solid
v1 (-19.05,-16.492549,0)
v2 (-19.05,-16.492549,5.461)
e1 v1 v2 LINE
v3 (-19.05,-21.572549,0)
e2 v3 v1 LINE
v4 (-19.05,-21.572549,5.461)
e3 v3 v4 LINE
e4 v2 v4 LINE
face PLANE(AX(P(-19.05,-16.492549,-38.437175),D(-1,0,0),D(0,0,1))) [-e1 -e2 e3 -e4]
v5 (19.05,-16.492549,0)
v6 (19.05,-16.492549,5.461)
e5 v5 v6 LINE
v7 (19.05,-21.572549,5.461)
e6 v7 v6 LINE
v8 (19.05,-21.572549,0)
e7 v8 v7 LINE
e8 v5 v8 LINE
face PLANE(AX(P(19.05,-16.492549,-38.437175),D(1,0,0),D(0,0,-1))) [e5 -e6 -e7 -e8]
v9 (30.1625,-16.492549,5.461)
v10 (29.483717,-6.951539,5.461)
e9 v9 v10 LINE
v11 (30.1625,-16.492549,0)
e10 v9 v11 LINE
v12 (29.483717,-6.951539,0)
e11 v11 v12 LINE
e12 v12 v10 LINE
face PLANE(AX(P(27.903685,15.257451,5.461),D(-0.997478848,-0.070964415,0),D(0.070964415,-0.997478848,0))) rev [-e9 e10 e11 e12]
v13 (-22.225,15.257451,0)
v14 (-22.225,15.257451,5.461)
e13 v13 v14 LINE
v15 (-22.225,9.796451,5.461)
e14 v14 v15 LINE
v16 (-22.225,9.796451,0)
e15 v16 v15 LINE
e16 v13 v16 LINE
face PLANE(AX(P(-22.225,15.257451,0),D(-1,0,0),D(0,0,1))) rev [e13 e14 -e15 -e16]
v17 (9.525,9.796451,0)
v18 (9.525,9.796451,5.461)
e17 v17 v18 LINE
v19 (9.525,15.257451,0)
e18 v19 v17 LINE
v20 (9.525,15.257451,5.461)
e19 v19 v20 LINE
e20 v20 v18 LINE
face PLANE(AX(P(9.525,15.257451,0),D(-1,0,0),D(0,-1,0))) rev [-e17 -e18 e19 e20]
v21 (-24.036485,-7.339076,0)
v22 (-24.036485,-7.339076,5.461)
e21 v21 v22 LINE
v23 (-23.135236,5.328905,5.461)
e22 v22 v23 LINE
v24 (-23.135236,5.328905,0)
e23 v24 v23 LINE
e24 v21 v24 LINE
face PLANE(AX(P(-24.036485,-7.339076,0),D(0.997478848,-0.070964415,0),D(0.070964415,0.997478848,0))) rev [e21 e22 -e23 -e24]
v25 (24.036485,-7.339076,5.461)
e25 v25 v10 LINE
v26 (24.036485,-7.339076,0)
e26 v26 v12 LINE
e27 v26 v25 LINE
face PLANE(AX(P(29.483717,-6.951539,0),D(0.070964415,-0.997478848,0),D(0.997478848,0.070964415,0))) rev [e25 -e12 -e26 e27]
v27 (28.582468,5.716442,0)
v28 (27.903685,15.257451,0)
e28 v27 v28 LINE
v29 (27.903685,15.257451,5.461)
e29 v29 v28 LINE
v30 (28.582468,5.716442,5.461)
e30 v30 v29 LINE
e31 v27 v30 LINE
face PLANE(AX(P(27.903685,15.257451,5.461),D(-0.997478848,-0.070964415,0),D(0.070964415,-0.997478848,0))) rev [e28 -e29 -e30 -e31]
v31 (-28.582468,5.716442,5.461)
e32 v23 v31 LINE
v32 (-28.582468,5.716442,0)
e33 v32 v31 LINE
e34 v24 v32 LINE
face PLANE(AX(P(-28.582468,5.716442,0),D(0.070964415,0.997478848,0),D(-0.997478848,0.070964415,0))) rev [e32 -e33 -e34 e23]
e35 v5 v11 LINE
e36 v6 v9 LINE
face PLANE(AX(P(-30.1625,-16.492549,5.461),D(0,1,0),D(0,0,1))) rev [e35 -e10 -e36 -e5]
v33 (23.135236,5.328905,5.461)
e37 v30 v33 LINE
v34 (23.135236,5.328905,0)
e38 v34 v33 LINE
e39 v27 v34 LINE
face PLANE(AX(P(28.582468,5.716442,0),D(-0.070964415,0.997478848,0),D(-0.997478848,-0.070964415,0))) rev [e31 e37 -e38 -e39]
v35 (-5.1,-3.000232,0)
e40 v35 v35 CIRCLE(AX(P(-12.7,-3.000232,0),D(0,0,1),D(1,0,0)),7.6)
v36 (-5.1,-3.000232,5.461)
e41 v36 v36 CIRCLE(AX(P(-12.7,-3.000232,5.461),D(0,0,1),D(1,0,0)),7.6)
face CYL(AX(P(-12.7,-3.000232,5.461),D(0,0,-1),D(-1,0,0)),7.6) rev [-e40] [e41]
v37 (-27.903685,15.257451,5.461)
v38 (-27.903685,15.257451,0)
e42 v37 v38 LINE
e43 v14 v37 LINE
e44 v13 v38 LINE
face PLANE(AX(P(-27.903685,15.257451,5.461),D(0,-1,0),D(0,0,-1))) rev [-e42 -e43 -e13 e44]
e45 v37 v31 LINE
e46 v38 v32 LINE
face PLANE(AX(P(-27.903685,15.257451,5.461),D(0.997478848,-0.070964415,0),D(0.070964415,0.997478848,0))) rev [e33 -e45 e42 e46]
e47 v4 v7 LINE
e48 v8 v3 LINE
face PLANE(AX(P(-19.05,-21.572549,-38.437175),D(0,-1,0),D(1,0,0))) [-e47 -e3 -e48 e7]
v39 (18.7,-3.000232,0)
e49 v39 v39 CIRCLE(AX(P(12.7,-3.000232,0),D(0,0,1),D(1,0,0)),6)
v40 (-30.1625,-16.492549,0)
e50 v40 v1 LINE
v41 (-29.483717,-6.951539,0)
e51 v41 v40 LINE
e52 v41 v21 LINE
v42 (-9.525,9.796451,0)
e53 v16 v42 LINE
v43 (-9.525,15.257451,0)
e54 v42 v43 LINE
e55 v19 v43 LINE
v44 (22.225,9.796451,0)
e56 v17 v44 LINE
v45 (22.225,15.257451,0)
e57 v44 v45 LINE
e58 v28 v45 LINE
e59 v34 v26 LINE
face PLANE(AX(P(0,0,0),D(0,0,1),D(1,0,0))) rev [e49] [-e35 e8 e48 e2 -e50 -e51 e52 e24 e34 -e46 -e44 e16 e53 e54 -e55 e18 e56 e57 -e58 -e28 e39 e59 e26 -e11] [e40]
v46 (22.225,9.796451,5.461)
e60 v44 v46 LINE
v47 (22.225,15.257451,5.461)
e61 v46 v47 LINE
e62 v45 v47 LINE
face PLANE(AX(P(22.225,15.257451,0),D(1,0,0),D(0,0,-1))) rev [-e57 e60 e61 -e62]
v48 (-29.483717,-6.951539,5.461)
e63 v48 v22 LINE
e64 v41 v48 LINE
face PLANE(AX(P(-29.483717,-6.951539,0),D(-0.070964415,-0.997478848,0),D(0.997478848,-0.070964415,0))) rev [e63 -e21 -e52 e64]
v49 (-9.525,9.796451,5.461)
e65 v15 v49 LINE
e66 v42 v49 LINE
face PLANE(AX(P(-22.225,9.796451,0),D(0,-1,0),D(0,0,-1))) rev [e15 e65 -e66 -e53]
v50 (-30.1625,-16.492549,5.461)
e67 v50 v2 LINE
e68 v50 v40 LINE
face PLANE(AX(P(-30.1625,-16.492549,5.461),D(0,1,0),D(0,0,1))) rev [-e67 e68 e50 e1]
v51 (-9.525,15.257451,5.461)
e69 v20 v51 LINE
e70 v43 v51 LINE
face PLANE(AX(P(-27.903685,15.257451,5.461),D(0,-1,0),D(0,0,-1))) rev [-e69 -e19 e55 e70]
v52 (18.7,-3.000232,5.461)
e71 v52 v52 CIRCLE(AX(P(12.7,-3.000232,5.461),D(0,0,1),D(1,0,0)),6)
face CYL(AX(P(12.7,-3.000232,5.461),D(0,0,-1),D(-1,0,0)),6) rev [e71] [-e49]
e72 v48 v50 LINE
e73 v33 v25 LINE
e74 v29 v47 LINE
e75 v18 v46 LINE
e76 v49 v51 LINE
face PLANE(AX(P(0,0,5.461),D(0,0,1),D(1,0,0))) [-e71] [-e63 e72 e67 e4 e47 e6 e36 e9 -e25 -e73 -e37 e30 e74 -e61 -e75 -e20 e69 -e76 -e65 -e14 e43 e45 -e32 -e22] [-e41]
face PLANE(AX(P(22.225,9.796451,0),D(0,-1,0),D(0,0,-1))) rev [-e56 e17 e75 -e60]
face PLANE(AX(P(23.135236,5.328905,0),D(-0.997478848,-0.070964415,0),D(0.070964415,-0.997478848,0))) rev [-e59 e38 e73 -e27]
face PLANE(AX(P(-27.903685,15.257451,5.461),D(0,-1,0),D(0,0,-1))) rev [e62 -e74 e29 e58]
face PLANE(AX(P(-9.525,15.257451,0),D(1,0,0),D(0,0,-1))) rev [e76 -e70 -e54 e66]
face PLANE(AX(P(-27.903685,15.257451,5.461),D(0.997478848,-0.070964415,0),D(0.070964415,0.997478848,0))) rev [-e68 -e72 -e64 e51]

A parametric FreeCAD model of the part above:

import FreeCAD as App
import Part
import Sketcher

V = App.Vector
Q = App.Units.Quantity


def add_polygon(sketch, points):
    """Adds a closed chain of lines whose ends are joined by coincident constraints."""
    first, n = sketch.GeometryCount, len(points)
    for a, b in zip(points, points[1:] + points[:1]):
        sketch.addGeometry(Part.LineSegment(App.Vector(*a, 0), App.Vector(*b, 0)), False)
    for i in range(n):
        sketch.addConstraint(Sketcher.Constraint("Coincident", first + i, 2, first + (i + 1) % n, 1))

doc = App.newDocument("Part")
body = doc.addObject("PartDesign::Body", "Body")

# Sketch on XY plane
sketch1 = body.newObject("Sketcher::SketchObject", "Sketch")
sketch1.AttachmentSupport = (doc.getObject("XY_Plane"), [""])
sketch1.MapMode = "FlatFace"
add_polygon(sketch1, [(28, 15), (-28, 15), (-30, -16), (30, -16)])  # lines 0-3
sketch1.addGeometry(Part.Circle(V(13, -3, 0), V(0, 0, 1), 6), False)  # 4
sketch1.addGeometry(Part.Circle(V(-13, -3, 0), V(0, 0, 1), 8), False)  # 5
sketch1.addConstraint(Sketcher.Constraint("Horizontal", 0))
sketch1.addConstraint(Sketcher.Constraint("Horizontal", 2))
sketch1.addConstraint(Sketcher.Constraint("Symmetric", 4, 3, 5, 3, -2))
sketch1.addConstraint(Sketcher.Constraint("Equal", 1, 3))
sketch1.addConstraint(Sketcher.Constraint("DistanceX", 5, 3, 4, 3, Q("1 in")))
sketch1.addConstraint(Sketcher.Constraint("Diameter", 4, 12.0))
sketch1.addConstraint(Sketcher.Constraint("Diameter", 5, 15.2))
sketch1.addConstraint(Sketcher.Constraint("DistanceX", 2, 1, 2, 2, Q("2.375 in")))
sketch1.addConstraint(Sketcher.Constraint("DistanceY", 1, 2, 0, 2, Q("1.25 in")))
sketch1.addConstraint(Sketcher.Constraint("DistanceX", 1, 2, -1, 1, Q("1.1875 in")))
sketch1.addConstraint(Sketcher.Constraint("DistanceX", 0, 2, 0, 1, 55.80737))
sketch1.addConstraint(Sketcher.Constraint("DistanceY", 4, 3, -1, 1, 3.000232))
sketch1.addConstraint(Sketcher.Constraint("DistanceY", -1, 1, 0, 2, 15.257451))
pad1 = body.newObject("PartDesign::Pad", "Pad")
pad1.Profile = sketch1
pad1.Length = Q("0.215 in")

# Sketch on XY plane
sketch2 = body.newObject("Sketcher::SketchObject", "Sketch001")
sketch2.AttachmentSupport = (doc.getObject("XY_Plane"), [""])
sketch2.MapMode = "FlatFace"
sketch2.AttachmentOffset = App.Placement(V(0, 0, 0.215 * 25.4), App.Rotation())
add_polygon(sketch2, [(-22, 15), (-22, 10), (-10, 10), (-10, 15)])  # lines 0-3
add_polygon(sketch2, [(10, 15), (10, 10), (22, 10), (22, 15)])  # lines 4-7
add_polygon(sketch2, [(-29, 6), (-29, -7), (-24, -7), (-23, 5)])  # lines 8-11
add_polygon(sketch2, [(29, -7), (29, 6), (23, 5), (24, -7)])  # lines 12-15
sketch2.addConstraint(Sketcher.Constraint("Vertical", 0))
sketch2.addConstraint(Sketcher.Constraint("Horizontal", 1))
sketch2.addConstraint(Sketcher.Constraint("Vertical", 2))
sketch2.addConstraint(Sketcher.Constraint("Horizontal", 3))
sketch2.addConstraint(Sketcher.Constraint("Vertical", 4))
sketch2.addConstraint(Sketcher.Constraint("Horizontal", 5))
sketch2.addConstraint(Sketcher.Constraint("Vertical", 6))
sketch2.addConstraint(Sketcher.Constraint("Horizontal", 7))
sketch2.addConstraint(Sketcher.Constraint("Symmetric", 1, 2, 4, 2, -2))
sketch2.addConstraint(Sketcher.Constraint("Symmetric", 3, 2, 6, 2, -2))
sketch2.addConstraint(Sketcher.Constraint("Symmetric", 11, 2, 12, 2, -2))
sketch2.addConstraint(Sketcher.Constraint("Symmetric", 10, 2, 13, 2, -2))
sketch2.addConstraint(Sketcher.Constraint("Symmetric", 9, 2, 14, 2, -2))
sketch2.addConstraint(Sketcher.Constraint("Symmetric", 8, 2, 15, 2, -2))
sketch2.addConstraint(Sketcher.Constraint("Perpendicular", 8, 9))
sketch2.addConstraint(Sketcher.Constraint("Perpendicular", 9, 10))
sketch2.addConstraint(Sketcher.Constraint("Perpendicular", 10, 11))
sketch2.addConstraint(Sketcher.Constraint("DistanceX", 1, 1, 1, 2, Q("0.5 in")))
sketch2.addConstraint(Sketcher.Constraint("Distance", 8, Q("0.5 in")))
sketch2.addConstraint(Sketcher.Constraint("DistanceY", 0, 2, 0, 1, Q("0.215 in")))
sketch2.addConstraint(Sketcher.Constraint("DistanceX", 1, 2, 4, 2, Q("0.75 in")))
sketch2.addConstraint(Sketcher.Constraint("Distance", 9, Q("0.215 in")))
sketch2.addConstraint(Sketcher.Constraint("DistanceY", -1, 1, 0, 2, 9.796451))
sketch2.addConstraint(Sketcher.Constraint("DistanceY", 8, 2, -1, 1, 6.951539))
sketch2.addConstraint(Sketcher.Constraint("DistanceX", 11, 2, -1, 1, 28.582468))
sketch2.addConstraint(Sketcher.Constraint("DistanceX", 8, 2, 9, 2, 5.447232))
pocket1 = body.newObject("PartDesign::Pocket", "Pocket")
pocket1.Profile = sketch2
pocket1.Type = "ThroughAll"

# Sketch on XY plane
sketch3 = body.newObject("Sketcher::SketchObject", "Sketch002")
sketch3.AttachmentSupport = (doc.getObject("XY_Plane"), [""])
sketch3.MapMode = "FlatFace"
sketch3.AttachmentOffset = App.Placement(V(0, 0, 0.215 * 25.4), App.Rotation())
add_polygon(sketch3, [(-19, -16), (-19, -22), (19, -22), (19, -16)])  # lines 0-3
sketch3.addConstraint(Sketcher.Constraint("Vertical", 0))
sketch3.addConstraint(Sketcher.Constraint("Horizontal", 1))
sketch3.addConstraint(Sketcher.Constraint("Vertical", 2))
sketch3.addConstraint(Sketcher.Constraint("Horizontal", 3))
sketch3.addConstraint(Sketcher.Constraint("DistanceX", 1, 1, 1, 2, Q("1.5 in")))
sketch3.addConstraint(Sketcher.Constraint("DistanceY", 0, 2, 0, 1, Q("0.2 in")))
sketch3.addConstraint(Sketcher.Constraint("DistanceX", 0, 2, -1, 1, Q("0.75 in")))
sketch3.addConstraint(Sketcher.Constraint("DistanceY", 0, 2, -1, 1, 21.572549))
pad2 = body.newObject("PartDesign::Pad", "Pad001")
pad2.Profile = sketch3
pad2.Length = Q("0.215 in")
pad2.Reversed = True

doc.recompute()
